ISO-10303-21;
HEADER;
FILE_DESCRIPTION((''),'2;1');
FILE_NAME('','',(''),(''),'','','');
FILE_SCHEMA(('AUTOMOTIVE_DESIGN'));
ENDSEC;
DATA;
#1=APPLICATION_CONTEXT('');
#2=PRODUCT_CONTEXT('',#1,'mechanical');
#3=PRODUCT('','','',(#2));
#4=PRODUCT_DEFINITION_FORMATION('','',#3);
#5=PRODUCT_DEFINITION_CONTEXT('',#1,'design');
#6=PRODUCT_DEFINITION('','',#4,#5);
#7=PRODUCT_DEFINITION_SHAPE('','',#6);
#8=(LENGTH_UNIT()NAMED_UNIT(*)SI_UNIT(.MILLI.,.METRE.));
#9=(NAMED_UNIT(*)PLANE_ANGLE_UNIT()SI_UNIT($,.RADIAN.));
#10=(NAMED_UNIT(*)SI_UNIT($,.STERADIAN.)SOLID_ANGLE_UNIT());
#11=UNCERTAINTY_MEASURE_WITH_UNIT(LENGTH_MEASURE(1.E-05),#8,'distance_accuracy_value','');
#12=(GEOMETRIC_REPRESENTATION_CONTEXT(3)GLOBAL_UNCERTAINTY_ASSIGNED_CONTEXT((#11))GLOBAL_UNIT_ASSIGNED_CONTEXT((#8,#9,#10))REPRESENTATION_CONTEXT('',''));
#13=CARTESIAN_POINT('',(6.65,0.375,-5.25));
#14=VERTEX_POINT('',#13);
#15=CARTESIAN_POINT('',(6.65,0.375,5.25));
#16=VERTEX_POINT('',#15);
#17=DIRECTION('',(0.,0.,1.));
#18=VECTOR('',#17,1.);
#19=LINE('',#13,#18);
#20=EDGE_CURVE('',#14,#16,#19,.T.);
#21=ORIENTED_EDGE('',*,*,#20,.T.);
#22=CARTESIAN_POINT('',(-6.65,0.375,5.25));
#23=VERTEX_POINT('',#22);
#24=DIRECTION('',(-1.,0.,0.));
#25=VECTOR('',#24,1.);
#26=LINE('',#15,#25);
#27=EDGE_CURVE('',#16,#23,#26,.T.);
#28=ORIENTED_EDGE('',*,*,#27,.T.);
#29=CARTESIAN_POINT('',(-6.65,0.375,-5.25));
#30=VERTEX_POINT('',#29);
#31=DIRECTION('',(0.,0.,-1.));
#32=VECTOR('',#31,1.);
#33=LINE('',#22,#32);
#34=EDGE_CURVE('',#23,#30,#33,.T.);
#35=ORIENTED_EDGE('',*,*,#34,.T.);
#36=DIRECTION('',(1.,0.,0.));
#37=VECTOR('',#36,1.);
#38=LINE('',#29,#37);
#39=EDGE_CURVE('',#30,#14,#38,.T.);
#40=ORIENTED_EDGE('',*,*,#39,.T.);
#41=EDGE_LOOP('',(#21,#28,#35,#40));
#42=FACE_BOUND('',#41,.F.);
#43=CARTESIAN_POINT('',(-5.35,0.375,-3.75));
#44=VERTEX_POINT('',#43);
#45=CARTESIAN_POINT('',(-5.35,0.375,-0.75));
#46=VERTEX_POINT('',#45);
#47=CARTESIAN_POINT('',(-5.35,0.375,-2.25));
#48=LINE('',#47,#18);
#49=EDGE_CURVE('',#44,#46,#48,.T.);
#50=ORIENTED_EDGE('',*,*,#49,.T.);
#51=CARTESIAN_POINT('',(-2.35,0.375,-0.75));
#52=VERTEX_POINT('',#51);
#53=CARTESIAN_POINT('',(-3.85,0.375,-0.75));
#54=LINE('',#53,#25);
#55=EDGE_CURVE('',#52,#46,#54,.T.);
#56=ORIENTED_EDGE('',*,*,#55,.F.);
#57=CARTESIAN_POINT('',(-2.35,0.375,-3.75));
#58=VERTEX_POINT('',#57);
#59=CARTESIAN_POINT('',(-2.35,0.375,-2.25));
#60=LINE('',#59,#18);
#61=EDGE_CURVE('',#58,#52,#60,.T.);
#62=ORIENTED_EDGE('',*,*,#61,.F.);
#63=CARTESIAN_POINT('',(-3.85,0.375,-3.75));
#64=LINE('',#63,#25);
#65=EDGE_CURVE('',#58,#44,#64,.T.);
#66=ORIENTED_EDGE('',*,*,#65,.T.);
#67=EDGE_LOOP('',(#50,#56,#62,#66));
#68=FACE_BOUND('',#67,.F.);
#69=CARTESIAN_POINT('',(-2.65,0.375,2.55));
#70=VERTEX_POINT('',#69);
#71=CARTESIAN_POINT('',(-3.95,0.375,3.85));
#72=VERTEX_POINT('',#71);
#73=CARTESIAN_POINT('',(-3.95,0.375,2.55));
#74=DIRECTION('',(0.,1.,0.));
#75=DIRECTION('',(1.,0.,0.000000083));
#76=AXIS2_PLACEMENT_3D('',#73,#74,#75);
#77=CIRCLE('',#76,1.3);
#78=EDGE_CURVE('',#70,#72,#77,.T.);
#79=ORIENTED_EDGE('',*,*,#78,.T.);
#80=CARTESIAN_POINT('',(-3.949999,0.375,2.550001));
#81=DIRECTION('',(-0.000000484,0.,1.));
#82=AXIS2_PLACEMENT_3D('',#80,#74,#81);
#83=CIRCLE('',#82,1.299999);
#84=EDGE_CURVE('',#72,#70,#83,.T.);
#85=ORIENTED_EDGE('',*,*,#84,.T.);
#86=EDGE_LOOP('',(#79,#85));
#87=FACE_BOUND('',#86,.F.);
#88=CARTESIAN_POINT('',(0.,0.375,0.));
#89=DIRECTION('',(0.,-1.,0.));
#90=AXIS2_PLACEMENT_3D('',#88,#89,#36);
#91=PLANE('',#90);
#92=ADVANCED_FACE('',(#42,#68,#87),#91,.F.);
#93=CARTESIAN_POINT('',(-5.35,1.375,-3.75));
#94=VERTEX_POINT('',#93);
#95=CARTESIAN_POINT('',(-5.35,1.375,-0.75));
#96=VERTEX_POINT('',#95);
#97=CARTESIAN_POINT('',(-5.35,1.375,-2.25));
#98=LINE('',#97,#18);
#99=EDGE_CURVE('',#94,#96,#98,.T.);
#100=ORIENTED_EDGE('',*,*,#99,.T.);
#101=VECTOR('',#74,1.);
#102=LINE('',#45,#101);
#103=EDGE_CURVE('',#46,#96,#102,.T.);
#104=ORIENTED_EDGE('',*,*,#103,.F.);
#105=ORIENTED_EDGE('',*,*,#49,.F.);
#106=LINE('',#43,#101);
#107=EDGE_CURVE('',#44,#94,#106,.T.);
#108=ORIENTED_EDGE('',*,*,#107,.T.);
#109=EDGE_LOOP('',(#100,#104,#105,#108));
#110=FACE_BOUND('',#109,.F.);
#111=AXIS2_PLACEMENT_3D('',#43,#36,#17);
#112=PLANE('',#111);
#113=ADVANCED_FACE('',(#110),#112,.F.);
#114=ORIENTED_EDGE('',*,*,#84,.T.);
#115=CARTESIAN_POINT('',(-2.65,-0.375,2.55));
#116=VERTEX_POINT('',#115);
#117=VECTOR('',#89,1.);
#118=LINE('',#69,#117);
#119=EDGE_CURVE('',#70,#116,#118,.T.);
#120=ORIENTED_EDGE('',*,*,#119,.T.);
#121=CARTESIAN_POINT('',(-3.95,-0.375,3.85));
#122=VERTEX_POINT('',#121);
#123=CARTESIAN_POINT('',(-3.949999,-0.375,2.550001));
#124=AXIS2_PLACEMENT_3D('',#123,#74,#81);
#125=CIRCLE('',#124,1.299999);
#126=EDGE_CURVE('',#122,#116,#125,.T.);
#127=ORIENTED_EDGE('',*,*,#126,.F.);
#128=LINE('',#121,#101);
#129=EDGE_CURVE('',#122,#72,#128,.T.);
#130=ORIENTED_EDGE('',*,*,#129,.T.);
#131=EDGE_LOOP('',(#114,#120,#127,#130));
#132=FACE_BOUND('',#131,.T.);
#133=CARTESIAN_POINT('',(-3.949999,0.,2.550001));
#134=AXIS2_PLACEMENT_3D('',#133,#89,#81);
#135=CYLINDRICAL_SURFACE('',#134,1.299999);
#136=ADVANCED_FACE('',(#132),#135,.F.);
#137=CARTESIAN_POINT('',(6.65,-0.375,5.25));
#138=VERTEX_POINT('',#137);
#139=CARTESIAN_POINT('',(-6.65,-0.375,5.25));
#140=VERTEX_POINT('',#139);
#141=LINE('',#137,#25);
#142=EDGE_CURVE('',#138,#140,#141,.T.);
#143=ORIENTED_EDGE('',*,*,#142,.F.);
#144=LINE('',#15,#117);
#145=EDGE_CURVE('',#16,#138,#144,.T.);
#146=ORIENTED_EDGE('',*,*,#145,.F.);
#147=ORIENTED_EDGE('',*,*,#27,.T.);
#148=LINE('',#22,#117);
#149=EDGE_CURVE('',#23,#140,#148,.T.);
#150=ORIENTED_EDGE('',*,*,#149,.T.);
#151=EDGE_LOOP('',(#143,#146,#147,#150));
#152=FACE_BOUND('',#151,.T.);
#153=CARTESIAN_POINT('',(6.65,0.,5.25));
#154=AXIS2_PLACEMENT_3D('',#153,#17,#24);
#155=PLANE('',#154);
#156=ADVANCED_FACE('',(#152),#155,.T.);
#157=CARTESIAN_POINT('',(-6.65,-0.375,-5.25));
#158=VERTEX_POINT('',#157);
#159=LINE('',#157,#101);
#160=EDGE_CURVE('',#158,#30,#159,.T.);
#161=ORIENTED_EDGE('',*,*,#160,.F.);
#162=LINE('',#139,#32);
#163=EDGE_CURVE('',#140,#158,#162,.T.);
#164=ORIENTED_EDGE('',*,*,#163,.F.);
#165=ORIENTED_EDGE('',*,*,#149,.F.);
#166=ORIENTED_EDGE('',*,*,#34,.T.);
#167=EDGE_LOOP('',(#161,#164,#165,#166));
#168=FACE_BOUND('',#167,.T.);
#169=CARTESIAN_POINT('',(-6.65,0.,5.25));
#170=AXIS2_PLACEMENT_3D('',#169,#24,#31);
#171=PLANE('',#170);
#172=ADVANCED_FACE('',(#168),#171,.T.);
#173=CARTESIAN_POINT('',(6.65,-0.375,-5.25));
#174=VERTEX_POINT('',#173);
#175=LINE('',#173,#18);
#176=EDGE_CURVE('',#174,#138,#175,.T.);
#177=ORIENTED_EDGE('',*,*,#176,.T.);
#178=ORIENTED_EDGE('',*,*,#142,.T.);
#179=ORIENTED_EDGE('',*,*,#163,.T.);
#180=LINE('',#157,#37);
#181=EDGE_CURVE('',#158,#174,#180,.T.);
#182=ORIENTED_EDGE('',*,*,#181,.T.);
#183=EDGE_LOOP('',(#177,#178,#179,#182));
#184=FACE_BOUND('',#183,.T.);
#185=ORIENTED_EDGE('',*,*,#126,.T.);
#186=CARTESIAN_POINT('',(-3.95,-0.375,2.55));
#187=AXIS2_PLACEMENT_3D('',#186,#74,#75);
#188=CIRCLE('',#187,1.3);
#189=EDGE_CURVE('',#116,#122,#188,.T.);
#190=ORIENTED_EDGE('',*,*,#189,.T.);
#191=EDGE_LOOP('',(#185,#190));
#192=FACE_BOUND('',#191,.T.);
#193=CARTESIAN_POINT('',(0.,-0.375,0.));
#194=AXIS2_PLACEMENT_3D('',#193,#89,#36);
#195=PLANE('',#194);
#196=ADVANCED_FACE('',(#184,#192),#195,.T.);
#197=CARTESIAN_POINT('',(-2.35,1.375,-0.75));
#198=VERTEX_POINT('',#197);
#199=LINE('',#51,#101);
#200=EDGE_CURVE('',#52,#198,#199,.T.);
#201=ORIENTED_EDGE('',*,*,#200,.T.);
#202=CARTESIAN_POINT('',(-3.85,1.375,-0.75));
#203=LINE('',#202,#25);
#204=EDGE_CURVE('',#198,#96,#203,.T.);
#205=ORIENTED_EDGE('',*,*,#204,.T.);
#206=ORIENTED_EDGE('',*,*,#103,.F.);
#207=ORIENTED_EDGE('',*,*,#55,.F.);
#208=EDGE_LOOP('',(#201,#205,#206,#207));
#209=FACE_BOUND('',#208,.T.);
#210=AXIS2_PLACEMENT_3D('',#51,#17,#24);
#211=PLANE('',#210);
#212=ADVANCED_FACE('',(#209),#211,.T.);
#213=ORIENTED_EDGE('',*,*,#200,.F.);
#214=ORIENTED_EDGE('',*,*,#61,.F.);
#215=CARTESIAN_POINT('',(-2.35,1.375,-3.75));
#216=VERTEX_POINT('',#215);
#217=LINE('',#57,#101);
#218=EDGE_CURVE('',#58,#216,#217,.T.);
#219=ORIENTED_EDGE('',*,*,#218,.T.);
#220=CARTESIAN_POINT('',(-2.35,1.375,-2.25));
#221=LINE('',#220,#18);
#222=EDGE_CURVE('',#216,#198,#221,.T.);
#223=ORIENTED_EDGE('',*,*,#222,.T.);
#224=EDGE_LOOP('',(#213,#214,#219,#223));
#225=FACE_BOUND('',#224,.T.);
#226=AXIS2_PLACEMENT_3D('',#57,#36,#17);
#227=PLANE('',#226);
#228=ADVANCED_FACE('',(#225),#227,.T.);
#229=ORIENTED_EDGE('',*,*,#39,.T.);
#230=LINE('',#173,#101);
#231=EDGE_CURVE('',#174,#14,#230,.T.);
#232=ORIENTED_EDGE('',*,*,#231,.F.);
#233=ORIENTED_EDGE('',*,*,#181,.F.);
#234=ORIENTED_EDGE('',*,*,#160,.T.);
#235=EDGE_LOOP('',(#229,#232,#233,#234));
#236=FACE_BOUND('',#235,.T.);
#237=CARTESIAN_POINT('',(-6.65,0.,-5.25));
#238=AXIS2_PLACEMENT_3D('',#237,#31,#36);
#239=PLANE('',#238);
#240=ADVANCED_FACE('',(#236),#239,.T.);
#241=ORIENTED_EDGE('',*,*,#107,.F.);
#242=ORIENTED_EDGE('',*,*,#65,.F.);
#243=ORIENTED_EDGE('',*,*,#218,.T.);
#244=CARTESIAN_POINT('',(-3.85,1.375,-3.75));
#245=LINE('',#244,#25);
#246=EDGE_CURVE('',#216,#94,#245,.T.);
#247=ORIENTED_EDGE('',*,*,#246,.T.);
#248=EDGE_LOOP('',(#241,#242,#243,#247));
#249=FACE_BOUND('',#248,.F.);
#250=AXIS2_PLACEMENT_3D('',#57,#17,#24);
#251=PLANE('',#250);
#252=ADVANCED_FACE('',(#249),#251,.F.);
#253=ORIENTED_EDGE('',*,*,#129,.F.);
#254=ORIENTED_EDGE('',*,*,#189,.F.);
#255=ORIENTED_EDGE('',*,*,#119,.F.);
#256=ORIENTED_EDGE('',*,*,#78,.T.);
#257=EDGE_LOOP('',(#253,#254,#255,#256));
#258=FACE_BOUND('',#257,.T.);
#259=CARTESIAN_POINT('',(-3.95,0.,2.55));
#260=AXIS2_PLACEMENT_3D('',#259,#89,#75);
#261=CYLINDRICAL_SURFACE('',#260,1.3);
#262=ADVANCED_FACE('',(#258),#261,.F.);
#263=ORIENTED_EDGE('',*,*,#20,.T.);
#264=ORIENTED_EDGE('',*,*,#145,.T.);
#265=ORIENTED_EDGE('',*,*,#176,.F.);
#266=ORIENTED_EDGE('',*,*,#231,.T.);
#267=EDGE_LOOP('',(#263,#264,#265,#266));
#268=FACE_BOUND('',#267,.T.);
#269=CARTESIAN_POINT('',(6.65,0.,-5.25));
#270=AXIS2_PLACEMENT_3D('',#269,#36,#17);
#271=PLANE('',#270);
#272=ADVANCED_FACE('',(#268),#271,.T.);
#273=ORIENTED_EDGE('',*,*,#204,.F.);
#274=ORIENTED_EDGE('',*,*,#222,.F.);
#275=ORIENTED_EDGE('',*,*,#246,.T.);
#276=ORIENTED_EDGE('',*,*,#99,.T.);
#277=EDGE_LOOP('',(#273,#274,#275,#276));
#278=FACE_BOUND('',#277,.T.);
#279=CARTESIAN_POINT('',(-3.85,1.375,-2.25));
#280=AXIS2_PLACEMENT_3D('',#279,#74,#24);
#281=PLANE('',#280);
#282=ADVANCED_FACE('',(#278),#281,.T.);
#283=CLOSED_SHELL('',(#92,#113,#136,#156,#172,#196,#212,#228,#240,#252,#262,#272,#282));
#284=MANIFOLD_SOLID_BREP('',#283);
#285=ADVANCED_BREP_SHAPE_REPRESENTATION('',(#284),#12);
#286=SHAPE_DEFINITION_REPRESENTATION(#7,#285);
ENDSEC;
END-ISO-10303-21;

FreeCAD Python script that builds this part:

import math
import FreeCAD as App
import Part
import Sketcher

V = App.Vector
Q = App.Units.Quantity

doc = App.newDocument("Part")
params = doc.addObject("Spreadsheet::Sheet", "Params")
for row, (alias, value) in enumerate([
    ("sketch1_radius", "1.299999 mm"),
    ("sketch1_width", "13.3 mm"),
    ("sketch1_height", "10.5 mm"),
    ("pad1_length", "0.75 mm"),
    ("sketch2_width", "3 mm"),
    ("pad2_length", "1 mm"),
], start=1):
    params.set(f"A{row}", alias)
    params.set(f"B{row}", "=" + value)
    params.setAlias(f"B{row}", alias)

body = doc.addObject("PartDesign::Body", "Body")

# Sketch on XZ plane
sketch1 = doc.addObject("Sketcher::SketchObject", "Sketch")
body.addObject(sketch1)
sketch1.AttachmentSupport = (doc.XZ_Plane, [""])
sketch1.MapMode = "FlatFace"
sketch1.addGeometry([
    Part.LineSegment(V(6.7, -5.2, 0), V(6.7, 5.2, 0)),  # 0
    Part.LineSegment(V(6.7, 5.2, 0), V(-6.7, 5.2, 0)),  # 1
    Part.LineSegment(V(-6.7, 5.2, 0), V(-6.7, -5.2, 0)),  # 2
    Part.LineSegment(V(-6.7, -5.2, 0), V(6.7, -5.2, 0)),  # 3
    Part.ArcOfCircle(Part.Circle(V(-3.9, 2.6, 0), V(0, 0, 1), 1.3), math.radians(0), math.radians(90)),  # 4
    Part.ArcOfCircle(Part.Circle(V(-4, 2.5, 0), V(0, 0, 1), 1.3), math.radians(90), math.radians(360)),  # 5
], False)
sketch1.addConstraint([
    Sketcher.Constraint("Coincident", 0, 2, 1, 1),
    Sketcher.Constraint("Coincident", 1, 2, 2, 1),
    Sketcher.Constraint("Coincident", 2, 2, 3, 1),
    Sketcher.Constraint("Coincident", 3, 2, 0, 1),
    Sketcher.Constraint("Tangent", 4, 1, 5, 2),
    Sketcher.Constraint("Coincident", 5, 1, 4, 2),
    Sketcher.Constraint("Vertical", 0),
    Sketcher.Constraint("Horizontal", 1),
    Sketcher.Constraint("Vertical", 2),
    Sketcher.Constraint("Horizontal", 3),
    Sketcher.Constraint("Symmetric", 0, 2, 2, 2, -1, 1),
    Sketcher.Constraint("Horizontal", 5, 3, 4, 1),
    Sketcher.Constraint("Vertical", 4, 3, 5, 1),
    Sketcher.Constraint("Radius", 4, Q("1.299999 mm")),
    Sketcher.Constraint("DistanceX", 1, 2, 1, 1, Q("13.3 mm")),
    Sketcher.Constraint("DistanceY", 0, 1, 0, 2, Q("10.5 mm")),
    Sketcher.Constraint("DistanceX", 1, 2, 4, 1, Q("4 mm")),
    Sketcher.Constraint("DistanceY", 4, 3, 0, 2, Q("2.699999 mm")),
])
sketch1.setExpression("Constraints[13]", "Params.sketch1_radius")
sketch1.setExpression("Constraints[14]", "Params.sketch1_width")
sketch1.setExpression("Constraints[15]", "Params.sketch1_height")
pad1 = doc.addObject("PartDesign::Pad", "Pad")
body.addObject(pad1)
pad1.Profile = sketch1
pad1.setExpression("Length", "Params.pad1_length")
pad1.Midplane = True

# Sketch on XZ plane
sketch2 = doc.addObject("Sketcher::SketchObject", "Sketch001")
body.addObject(sketch2)
sketch2.AttachmentSupport = (doc.XZ_Plane, [""])
sketch2.MapMode = "FlatFace"
sketch2.AttachmentOffset = App.Placement(V(0, 0, -0.375), App.Rotation())
sketch2.addGeometry([
    Part.LineSegment(V(-2.4, -0.8, 0), V(-2.4, -3.8, 0)),
    Part.LineSegment(V(-2.4, -3.8, 0), V(-5.3, -3.8, 0)),
    Part.LineSegment(V(-5.3, -3.8, 0), V(-5.3, -0.8, 0)),
    Part.LineSegment(V(-5.3, -0.8, 0), V(-2.4, -0.8, 0)),
], False)
sketch2.addConstraint([
    Sketcher.Constraint("Coincident", 0, 2, 1, 1),
    Sketcher.Constraint("Coincident", 1, 2, 2, 1),
    Sketcher.Constraint("Coincident", 2, 2, 3, 1),
    Sketcher.Constraint("Coincident", 3, 2, 0, 1),
    Sketcher.Constraint("Vertical", 0),
    Sketcher.Constraint("Horizontal", 1),
    Sketcher.Constraint("Vertical", 2),
    Sketcher.Constraint("Horizontal", 3),
    Sketcher.Constraint("Equal", 3, 0),
    Sketcher.Constraint("DistanceX", 1, 2, 1, 1, Q("3 mm")),
    Sketcher.Constraint("DistanceX", 0, 2, -1, 1, Q("2.35 mm")),
    Sketcher.Constraint("DistanceY", 0, 2, -1, 1, Q("3.75 mm")),
])
sketch2.setExpression("Constraints[9]", "Params.sketch2_width")
pad2 = doc.addObject("PartDesign::Pad", "Pad001")
body.addObject(pad2)
pad2.Profile = sketch2
pad2.setExpression("Length", "Params.pad2_length")
pad2.Reversed = True

doc.recompute()
